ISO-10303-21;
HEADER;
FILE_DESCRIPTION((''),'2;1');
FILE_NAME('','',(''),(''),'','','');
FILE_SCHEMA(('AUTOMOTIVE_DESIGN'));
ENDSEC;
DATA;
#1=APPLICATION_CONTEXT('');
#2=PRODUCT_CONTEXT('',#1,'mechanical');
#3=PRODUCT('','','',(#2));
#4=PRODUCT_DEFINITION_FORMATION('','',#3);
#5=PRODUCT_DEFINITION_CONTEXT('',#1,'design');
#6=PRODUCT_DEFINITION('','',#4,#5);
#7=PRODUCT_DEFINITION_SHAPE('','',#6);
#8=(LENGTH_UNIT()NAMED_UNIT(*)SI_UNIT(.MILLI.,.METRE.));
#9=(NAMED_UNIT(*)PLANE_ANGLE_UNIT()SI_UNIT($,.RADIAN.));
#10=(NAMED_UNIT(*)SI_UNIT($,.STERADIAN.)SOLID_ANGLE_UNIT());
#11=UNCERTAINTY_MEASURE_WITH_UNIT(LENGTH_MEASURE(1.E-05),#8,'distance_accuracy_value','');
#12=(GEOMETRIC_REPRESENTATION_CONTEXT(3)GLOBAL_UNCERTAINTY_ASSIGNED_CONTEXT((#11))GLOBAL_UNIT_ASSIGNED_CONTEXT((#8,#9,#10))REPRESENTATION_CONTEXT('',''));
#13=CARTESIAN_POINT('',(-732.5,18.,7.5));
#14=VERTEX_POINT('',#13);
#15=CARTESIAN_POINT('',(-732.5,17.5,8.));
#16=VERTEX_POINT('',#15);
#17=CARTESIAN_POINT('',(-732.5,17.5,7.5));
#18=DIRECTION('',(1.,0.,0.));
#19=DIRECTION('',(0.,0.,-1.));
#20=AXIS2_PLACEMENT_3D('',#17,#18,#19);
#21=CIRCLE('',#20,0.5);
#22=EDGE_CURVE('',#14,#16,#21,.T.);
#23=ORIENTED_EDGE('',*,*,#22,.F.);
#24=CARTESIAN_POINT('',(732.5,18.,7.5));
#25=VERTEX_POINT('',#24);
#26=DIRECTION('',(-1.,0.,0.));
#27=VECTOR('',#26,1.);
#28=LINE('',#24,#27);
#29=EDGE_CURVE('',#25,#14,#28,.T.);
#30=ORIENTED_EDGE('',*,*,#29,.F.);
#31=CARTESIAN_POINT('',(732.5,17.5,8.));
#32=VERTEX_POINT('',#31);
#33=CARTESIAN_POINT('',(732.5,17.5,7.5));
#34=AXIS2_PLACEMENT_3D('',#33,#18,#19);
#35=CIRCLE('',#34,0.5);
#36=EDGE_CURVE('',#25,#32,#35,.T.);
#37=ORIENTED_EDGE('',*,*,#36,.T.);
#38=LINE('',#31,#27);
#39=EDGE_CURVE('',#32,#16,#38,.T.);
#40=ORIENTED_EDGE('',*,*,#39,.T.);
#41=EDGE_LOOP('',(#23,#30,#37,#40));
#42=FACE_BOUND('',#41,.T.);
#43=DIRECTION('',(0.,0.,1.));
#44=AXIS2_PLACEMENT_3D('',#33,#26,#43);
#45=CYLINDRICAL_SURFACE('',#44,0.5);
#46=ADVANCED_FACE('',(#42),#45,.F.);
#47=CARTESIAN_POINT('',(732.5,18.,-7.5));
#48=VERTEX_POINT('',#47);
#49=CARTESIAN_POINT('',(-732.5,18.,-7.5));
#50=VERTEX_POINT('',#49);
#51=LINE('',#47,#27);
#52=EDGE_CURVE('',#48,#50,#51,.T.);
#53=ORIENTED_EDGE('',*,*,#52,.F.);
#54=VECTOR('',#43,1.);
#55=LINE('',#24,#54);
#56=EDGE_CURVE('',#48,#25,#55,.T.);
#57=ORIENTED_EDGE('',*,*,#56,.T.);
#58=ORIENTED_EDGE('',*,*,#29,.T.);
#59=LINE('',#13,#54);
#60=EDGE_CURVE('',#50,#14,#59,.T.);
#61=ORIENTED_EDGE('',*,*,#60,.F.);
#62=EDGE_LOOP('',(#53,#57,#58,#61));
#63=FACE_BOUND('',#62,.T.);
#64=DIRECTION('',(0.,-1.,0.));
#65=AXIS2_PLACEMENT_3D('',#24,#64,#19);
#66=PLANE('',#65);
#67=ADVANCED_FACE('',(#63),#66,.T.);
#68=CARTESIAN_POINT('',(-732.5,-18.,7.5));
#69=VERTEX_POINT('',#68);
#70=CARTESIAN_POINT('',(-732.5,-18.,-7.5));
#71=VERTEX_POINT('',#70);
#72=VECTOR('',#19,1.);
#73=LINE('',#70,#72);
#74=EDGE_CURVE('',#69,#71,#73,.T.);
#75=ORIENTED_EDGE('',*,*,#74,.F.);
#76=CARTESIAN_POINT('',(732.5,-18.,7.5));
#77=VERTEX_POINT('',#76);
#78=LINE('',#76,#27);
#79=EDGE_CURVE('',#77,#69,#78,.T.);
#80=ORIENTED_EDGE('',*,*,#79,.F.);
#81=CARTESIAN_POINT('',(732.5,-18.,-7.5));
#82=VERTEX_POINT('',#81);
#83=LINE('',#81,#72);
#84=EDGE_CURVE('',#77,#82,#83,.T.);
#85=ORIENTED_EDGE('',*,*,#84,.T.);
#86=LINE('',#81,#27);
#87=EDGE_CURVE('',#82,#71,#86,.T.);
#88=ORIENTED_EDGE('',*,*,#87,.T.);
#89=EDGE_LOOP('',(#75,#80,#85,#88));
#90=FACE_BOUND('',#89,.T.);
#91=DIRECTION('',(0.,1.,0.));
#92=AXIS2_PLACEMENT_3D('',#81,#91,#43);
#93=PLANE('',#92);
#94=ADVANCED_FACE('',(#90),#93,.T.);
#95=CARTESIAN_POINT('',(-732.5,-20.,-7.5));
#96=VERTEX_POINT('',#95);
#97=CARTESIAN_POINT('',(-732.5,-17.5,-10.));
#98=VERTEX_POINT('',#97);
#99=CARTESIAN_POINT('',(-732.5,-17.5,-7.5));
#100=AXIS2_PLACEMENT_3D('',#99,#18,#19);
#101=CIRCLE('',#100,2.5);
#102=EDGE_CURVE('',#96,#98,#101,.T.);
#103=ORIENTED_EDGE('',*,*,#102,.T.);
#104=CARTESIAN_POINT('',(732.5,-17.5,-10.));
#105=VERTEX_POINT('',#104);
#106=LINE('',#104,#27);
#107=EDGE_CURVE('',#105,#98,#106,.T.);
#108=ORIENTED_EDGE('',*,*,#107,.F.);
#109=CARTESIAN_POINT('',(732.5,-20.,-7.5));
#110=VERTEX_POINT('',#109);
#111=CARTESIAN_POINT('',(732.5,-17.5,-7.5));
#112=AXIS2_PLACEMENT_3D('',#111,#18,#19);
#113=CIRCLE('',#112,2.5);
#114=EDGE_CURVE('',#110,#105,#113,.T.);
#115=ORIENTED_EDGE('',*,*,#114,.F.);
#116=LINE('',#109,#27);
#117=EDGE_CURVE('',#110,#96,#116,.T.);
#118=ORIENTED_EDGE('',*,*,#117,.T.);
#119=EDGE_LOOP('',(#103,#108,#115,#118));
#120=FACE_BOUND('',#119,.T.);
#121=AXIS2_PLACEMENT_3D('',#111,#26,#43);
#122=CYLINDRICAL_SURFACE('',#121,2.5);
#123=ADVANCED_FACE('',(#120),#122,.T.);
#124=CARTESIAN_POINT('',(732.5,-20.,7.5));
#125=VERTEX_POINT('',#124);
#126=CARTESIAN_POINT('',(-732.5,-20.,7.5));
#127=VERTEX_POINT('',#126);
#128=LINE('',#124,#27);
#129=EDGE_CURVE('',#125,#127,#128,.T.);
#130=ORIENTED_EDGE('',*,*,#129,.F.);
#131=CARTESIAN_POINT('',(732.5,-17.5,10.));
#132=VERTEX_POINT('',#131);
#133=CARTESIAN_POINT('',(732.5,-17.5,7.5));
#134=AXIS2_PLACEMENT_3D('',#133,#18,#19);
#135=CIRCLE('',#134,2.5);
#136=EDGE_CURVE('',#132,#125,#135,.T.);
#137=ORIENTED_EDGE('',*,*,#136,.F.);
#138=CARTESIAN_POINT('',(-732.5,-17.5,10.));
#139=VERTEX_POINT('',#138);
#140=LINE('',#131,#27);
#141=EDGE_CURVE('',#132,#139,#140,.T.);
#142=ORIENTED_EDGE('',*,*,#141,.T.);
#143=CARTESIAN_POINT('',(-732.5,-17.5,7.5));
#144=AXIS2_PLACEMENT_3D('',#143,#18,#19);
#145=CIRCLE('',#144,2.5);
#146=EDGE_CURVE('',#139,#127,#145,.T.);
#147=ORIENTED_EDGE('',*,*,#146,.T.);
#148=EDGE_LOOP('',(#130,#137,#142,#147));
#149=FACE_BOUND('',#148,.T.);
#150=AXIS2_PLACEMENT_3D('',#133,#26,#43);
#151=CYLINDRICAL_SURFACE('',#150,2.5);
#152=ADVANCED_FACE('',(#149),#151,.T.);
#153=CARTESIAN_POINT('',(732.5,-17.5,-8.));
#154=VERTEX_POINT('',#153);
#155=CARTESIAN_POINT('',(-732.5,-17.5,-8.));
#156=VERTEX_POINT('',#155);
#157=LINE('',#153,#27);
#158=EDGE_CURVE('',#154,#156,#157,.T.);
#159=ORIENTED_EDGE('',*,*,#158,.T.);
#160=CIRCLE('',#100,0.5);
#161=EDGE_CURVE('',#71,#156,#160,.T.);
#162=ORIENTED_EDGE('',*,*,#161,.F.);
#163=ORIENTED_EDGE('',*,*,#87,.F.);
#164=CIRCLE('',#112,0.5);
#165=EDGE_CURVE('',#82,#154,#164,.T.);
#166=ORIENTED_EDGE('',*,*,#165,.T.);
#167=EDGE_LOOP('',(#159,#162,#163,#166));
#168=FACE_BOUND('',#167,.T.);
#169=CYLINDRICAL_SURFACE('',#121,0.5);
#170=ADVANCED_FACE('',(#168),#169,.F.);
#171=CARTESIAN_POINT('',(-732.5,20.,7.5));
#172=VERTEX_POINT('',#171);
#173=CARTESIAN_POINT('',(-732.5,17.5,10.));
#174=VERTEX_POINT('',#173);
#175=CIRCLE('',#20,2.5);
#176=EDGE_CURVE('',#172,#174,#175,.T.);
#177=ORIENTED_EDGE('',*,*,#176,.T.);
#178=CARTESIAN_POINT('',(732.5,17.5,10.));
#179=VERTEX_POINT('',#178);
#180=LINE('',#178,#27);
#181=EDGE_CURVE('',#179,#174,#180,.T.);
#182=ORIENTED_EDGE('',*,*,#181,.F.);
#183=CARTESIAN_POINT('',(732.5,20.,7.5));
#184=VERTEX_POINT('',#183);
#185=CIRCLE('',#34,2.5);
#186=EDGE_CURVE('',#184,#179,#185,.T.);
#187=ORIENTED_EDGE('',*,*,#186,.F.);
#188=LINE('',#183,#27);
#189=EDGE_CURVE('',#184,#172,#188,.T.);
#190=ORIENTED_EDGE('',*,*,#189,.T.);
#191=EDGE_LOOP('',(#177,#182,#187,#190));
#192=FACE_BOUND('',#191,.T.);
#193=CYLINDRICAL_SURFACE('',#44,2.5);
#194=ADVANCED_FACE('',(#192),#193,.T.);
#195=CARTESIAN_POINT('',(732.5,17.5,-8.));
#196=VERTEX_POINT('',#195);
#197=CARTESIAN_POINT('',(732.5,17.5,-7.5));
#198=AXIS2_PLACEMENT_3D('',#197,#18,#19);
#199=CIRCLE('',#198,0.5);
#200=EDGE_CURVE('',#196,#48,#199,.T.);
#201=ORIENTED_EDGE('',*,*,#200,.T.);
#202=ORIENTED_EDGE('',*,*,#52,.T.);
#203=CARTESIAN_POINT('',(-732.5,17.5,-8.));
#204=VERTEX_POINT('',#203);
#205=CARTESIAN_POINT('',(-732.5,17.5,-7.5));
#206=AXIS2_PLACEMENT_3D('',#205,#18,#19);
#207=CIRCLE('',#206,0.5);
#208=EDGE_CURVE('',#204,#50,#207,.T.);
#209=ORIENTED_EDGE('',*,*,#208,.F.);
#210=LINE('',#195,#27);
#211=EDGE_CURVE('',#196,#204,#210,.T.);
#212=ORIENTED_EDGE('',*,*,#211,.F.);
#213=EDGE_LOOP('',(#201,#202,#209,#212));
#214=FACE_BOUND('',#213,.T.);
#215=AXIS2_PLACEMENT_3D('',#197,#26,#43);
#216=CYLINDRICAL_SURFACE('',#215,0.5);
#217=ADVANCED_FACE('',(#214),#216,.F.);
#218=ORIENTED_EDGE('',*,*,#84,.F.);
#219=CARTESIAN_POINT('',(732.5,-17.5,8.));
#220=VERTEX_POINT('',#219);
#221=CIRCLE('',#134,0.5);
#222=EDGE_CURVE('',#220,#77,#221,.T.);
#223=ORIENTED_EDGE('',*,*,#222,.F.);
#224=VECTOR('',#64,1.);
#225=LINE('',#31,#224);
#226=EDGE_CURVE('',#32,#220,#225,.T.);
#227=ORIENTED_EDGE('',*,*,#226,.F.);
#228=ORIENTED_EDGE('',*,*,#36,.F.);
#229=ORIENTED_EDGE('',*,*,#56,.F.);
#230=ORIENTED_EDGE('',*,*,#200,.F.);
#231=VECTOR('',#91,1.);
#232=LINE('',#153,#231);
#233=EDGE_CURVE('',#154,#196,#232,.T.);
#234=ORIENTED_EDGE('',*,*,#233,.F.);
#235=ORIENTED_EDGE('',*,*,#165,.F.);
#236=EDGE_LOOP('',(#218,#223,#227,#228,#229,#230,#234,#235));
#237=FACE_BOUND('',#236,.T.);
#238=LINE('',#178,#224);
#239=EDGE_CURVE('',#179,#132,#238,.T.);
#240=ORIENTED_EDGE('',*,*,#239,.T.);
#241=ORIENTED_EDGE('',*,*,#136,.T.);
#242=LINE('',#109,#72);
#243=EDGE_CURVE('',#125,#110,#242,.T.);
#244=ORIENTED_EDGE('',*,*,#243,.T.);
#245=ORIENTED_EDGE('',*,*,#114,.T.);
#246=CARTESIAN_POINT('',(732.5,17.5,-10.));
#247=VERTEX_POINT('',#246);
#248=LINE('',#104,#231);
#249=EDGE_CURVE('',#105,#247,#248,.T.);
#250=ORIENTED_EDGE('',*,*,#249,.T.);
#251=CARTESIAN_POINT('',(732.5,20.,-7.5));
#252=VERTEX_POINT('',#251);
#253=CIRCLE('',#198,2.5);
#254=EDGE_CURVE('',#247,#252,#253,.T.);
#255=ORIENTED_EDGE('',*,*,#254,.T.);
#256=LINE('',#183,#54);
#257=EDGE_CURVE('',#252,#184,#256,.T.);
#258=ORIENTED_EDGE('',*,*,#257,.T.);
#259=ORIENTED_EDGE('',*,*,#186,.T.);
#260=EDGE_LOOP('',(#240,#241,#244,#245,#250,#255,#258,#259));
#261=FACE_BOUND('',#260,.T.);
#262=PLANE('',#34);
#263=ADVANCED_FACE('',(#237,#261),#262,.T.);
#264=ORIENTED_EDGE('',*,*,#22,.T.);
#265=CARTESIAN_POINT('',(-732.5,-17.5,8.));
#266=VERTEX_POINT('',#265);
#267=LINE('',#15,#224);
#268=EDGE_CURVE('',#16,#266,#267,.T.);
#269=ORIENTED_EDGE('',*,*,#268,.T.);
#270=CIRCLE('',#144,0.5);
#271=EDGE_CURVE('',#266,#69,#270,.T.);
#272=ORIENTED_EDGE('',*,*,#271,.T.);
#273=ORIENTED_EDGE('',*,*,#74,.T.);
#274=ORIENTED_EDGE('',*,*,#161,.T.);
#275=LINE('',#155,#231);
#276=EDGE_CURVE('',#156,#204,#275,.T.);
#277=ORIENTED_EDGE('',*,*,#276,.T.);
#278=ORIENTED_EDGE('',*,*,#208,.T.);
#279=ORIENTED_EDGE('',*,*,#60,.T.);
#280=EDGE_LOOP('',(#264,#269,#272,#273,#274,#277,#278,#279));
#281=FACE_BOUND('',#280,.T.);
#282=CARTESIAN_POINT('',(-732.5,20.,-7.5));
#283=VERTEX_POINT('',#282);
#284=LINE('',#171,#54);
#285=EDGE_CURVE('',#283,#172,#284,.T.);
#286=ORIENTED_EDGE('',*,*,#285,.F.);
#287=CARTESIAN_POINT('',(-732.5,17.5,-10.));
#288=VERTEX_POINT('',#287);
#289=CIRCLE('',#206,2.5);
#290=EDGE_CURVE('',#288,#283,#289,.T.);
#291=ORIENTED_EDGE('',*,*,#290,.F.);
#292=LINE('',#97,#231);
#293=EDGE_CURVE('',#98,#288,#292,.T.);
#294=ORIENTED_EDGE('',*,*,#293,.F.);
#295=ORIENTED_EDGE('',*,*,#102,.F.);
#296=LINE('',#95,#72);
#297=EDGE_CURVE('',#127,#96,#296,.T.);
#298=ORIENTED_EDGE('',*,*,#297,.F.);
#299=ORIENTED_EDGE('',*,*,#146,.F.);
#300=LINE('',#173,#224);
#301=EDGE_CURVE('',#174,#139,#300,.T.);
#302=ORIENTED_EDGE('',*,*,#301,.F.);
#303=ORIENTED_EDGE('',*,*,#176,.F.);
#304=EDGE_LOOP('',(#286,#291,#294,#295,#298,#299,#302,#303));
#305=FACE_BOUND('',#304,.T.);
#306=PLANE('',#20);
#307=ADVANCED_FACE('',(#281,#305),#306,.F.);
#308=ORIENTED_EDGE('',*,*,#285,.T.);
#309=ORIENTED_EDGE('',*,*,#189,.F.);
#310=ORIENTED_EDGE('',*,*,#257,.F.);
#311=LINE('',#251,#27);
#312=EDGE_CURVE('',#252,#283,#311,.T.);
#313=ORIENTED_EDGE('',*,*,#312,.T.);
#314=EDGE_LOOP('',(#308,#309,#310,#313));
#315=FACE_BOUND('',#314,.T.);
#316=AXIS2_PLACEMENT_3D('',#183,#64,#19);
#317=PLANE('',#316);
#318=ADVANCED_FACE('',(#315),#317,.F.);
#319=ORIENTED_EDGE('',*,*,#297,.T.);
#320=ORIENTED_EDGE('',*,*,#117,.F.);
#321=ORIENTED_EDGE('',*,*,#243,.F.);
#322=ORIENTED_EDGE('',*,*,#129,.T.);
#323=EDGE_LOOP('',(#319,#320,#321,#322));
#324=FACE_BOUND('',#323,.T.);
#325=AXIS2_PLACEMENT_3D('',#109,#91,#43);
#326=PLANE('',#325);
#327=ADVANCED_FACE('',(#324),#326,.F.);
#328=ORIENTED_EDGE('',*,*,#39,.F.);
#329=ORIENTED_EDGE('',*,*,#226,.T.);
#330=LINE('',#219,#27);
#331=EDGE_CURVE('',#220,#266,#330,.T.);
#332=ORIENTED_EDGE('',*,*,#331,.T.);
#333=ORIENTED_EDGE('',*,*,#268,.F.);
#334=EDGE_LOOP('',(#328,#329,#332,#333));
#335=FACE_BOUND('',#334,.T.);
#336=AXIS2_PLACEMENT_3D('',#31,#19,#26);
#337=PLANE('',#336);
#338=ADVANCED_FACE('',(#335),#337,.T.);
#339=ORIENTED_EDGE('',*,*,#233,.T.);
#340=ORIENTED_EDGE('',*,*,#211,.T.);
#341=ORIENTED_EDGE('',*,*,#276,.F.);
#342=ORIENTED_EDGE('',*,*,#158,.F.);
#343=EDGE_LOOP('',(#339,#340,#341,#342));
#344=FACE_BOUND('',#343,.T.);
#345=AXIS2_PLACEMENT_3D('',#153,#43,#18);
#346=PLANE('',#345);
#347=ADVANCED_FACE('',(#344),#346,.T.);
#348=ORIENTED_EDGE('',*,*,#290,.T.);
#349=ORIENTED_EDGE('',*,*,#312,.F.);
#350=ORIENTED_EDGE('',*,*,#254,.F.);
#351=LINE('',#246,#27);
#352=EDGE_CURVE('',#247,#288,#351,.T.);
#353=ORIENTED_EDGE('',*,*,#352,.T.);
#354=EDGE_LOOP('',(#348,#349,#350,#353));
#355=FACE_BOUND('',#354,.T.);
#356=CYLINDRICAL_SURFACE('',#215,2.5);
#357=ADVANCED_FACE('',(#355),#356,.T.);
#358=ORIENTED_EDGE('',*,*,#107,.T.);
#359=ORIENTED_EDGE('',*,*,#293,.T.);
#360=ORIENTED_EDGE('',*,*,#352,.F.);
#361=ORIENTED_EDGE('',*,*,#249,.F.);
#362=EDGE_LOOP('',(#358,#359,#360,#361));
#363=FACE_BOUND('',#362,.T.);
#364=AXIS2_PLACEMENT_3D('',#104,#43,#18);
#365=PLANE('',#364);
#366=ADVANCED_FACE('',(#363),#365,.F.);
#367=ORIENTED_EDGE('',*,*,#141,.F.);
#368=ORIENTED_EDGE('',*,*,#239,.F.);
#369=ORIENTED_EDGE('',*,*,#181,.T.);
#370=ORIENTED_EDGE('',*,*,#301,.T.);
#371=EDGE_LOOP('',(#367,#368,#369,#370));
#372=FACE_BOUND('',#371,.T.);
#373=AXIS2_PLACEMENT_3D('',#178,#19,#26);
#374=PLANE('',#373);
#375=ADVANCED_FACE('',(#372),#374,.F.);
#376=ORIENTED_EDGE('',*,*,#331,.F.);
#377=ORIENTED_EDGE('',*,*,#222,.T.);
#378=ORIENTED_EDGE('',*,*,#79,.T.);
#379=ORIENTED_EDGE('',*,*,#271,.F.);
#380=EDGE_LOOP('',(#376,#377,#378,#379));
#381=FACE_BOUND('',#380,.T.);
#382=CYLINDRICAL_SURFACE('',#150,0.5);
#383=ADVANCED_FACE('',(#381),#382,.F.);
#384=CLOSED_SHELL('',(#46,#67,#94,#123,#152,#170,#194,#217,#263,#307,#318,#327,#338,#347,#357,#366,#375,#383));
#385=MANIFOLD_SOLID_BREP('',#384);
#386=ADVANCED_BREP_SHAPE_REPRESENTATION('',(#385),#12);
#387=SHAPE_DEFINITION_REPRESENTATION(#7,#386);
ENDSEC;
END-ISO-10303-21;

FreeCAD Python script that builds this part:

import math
import FreeCAD as App
import Part
import Sketcher

V = App.Vector
Q = App.Units.Quantity

doc = App.newDocument("Part")
body = doc.addObject("PartDesign::Body", "Body")

sketch1 = doc.addObject("Sketcher::SketchObject", "Sketch")
body.addObject(sketch1)
sketch1.AttachmentSupport = (doc.YZ_Plane, [""])
sketch1.MapMode = "FlatFace"
sketch1.AttachmentOffset = App.Placement(V(0, 0, -732.5), App.Rotation())
sketch1.addGeometry(Part.LineSegment(V(-17.5, -10, 0), V(17.5, -10, 0)), False)
sketch1.addGeometry(Part.ArcOfCircle(Part.Circle(V(17.5, -7.5, 0), V(0, 0, 1), 2.5), math.radians(-90), math.radians(0)), False)
sketch1.addGeometry(Part.LineSegment(V(20, -7.5, 0), V(20, 7.5, 0)), False)
sketch1.addGeometry(Part.ArcOfCircle(Part.Circle(V(17.5, 7.5, 0), V(0, 0, 1), 2.5), math.radians(0), math.radians(90)), False)
sketch1.addGeometry(Part.LineSegment(V(17.5, 10, 0), V(-17.5, 10, 0)), False)
sketch1.addGeometry(Part.ArcOfCircle(Part.Circle(V(-17.5, 7.5, 0), V(0, 0, 1), 2.5), math.radians(90), math.radians(180)), False)
sketch1.addGeometry(Part.LineSegment(V(-20, 7.5, 0), V(-20, -7.5, 0)), False)
sketch1.addGeometry(Part.ArcOfCircle(Part.Circle(V(-17.5, -7.5, 0), V(0, 0, 1), 2.5), math.radians(180), math.radians(270)), False)
sketch1.addGeometry(Part.LineSegment(V(17.5, -8, 0), V(-17.5, -8, 0)), False)
sketch1.addGeometry(Part.ArcOfCircle(Part.Circle(V(-17.5, -7.5, 0), V(0, 0, 1), 0.5), math.radians(180), math.radians(270)), False)
sketch1.addGeometry(Part.LineSegment(V(-18, -7.5, 0), V(-18, 7.5, 0)), False)
sketch1.addGeometry(Part.ArcOfCircle(Part.Circle(V(-17.5, 7.5, 0), V(0, 0, 1), 0.5), math.radians(90), math.radians(180)), False)
sketch1.addGeometry(Part.LineSegment(V(-17.5, 8, 0), V(17.5, 8, 0)), False)
sketch1.addGeometry(Part.ArcOfCircle(Part.Circle(V(17.5, 7.5, 0), V(0, 0, 1), 0.5), math.radians(0), math.radians(90)), False)
sketch1.addGeometry(Part.LineSegment(V(18, 7.5, 0), V(18, -7.5, 0)), False)
sketch1.addGeometry(Part.ArcOfCircle(Part.Circle(V(17.5, -7.5, 0), V(0, 0, 1), 0.5), math.radians(-90), math.radians(0)), False)
sketch1.addConstraint(Sketcher.Constraint("Tangent", 0, 2, 1, 1))
sketch1.addConstraint(Sketcher.Constraint("Tangent", 1, 2, 2, 1))
sketch1.addConstraint(Sketcher.Constraint("Tangent", 2, 2, 3, 1))
sketch1.addConstraint(Sketcher.Constraint("Tangent", 3, 2, 4, 1))
sketch1.addConstraint(Sketcher.Constraint("Tangent", 4, 2, 5, 1))
sketch1.addConstraint(Sketcher.Constraint("Tangent", 5, 2, 6, 1))
sketch1.addConstraint(Sketcher.Constraint("Tangent", 6, 2, 7, 1))
sketch1.addConstraint(Sketcher.Constraint("Tangent", 7, 2, 0, 1))
sketch1.addConstraint(Sketcher.Constraint("Tangent", 8, 2, 9, 2))
sketch1.addConstraint(Sketcher.Constraint("Tangent", 9, 1, 10, 1))
sketch1.addConstraint(Sketcher.Constraint("Tangent", 10, 2, 11, 2))
sketch1.addConstraint(Sketcher.Constraint("Tangent", 11, 1, 12, 1))
sketch1.addConstraint(Sketcher.Constraint("Tangent", 12, 2, 13, 2))
sketch1.addConstraint(Sketcher.Constraint("Tangent", 13, 1, 14, 1))
sketch1.addConstraint(Sketcher.Constraint("Tangent", 14, 2, 15, 2))
sketch1.addConstraint(Sketcher.Constraint("Tangent", 15, 1, 8, 1))
sketch1.addConstraint(Sketcher.Constraint("Horizontal", 0))
sketch1.addConstraint(Sketcher.Constraint("Vertical", 2))
sketch1.addConstraint(Sketcher.Constraint("Horizontal", 4))
sketch1.addConstraint(Sketcher.Constraint("Vertical", 6))
sketch1.addConstraint(Sketcher.Constraint("Horizontal", 8))
sketch1.addConstraint(Sketcher.Constraint("Vertical", 10))
sketch1.addConstraint(Sketcher.Constraint("Horizontal", 12))
sketch1.addConstraint(Sketcher.Constraint("Vertical", 14))
sketch1.addConstraint(Sketcher.Constraint("Coincident", 9, 3, 7, 3))
sketch1.addConstraint(Sketcher.Constraint("Coincident", 11, 3, 5, 3))
sketch1.addConstraint(Sketcher.Constraint("Coincident", 13, 3, 3, 3))
sketch1.addConstraint(Sketcher.Constraint("Equal", 1, 3))
sketch1.addConstraint(Sketcher.Constraint("Equal", 3, 5))
sketch1.addConstraint(Sketcher.Constraint("Equal", 5, 7))
sketch1.addConstraint(Sketcher.Constraint("Equal", 13, 15))
sketch1.addConstraint(Sketcher.Constraint("Symmetric", 1, 3, 5, 3, -1, 1))
sketch1.addConstraint(Sketcher.Constraint("Radius", 1, Q("2.5 mm")))
sketch1.addConstraint(Sketcher.Constraint("Radius", 9, Q("0.5 mm")))
sketch1.addConstraint(Sketcher.Constraint("DistanceX", 0, 1, 0, 2, Q("35 mm")))
sketch1.addConstraint(Sketcher.Constraint("DistanceY", 2, 1, 2, 2, Q("15 mm")))
pad1 = doc.addObject("PartDesign::Pad", "Pad")
body.addObject(pad1)
pad1.Profile = sketch1
pad1.Length = 1465

doc.recompute()
